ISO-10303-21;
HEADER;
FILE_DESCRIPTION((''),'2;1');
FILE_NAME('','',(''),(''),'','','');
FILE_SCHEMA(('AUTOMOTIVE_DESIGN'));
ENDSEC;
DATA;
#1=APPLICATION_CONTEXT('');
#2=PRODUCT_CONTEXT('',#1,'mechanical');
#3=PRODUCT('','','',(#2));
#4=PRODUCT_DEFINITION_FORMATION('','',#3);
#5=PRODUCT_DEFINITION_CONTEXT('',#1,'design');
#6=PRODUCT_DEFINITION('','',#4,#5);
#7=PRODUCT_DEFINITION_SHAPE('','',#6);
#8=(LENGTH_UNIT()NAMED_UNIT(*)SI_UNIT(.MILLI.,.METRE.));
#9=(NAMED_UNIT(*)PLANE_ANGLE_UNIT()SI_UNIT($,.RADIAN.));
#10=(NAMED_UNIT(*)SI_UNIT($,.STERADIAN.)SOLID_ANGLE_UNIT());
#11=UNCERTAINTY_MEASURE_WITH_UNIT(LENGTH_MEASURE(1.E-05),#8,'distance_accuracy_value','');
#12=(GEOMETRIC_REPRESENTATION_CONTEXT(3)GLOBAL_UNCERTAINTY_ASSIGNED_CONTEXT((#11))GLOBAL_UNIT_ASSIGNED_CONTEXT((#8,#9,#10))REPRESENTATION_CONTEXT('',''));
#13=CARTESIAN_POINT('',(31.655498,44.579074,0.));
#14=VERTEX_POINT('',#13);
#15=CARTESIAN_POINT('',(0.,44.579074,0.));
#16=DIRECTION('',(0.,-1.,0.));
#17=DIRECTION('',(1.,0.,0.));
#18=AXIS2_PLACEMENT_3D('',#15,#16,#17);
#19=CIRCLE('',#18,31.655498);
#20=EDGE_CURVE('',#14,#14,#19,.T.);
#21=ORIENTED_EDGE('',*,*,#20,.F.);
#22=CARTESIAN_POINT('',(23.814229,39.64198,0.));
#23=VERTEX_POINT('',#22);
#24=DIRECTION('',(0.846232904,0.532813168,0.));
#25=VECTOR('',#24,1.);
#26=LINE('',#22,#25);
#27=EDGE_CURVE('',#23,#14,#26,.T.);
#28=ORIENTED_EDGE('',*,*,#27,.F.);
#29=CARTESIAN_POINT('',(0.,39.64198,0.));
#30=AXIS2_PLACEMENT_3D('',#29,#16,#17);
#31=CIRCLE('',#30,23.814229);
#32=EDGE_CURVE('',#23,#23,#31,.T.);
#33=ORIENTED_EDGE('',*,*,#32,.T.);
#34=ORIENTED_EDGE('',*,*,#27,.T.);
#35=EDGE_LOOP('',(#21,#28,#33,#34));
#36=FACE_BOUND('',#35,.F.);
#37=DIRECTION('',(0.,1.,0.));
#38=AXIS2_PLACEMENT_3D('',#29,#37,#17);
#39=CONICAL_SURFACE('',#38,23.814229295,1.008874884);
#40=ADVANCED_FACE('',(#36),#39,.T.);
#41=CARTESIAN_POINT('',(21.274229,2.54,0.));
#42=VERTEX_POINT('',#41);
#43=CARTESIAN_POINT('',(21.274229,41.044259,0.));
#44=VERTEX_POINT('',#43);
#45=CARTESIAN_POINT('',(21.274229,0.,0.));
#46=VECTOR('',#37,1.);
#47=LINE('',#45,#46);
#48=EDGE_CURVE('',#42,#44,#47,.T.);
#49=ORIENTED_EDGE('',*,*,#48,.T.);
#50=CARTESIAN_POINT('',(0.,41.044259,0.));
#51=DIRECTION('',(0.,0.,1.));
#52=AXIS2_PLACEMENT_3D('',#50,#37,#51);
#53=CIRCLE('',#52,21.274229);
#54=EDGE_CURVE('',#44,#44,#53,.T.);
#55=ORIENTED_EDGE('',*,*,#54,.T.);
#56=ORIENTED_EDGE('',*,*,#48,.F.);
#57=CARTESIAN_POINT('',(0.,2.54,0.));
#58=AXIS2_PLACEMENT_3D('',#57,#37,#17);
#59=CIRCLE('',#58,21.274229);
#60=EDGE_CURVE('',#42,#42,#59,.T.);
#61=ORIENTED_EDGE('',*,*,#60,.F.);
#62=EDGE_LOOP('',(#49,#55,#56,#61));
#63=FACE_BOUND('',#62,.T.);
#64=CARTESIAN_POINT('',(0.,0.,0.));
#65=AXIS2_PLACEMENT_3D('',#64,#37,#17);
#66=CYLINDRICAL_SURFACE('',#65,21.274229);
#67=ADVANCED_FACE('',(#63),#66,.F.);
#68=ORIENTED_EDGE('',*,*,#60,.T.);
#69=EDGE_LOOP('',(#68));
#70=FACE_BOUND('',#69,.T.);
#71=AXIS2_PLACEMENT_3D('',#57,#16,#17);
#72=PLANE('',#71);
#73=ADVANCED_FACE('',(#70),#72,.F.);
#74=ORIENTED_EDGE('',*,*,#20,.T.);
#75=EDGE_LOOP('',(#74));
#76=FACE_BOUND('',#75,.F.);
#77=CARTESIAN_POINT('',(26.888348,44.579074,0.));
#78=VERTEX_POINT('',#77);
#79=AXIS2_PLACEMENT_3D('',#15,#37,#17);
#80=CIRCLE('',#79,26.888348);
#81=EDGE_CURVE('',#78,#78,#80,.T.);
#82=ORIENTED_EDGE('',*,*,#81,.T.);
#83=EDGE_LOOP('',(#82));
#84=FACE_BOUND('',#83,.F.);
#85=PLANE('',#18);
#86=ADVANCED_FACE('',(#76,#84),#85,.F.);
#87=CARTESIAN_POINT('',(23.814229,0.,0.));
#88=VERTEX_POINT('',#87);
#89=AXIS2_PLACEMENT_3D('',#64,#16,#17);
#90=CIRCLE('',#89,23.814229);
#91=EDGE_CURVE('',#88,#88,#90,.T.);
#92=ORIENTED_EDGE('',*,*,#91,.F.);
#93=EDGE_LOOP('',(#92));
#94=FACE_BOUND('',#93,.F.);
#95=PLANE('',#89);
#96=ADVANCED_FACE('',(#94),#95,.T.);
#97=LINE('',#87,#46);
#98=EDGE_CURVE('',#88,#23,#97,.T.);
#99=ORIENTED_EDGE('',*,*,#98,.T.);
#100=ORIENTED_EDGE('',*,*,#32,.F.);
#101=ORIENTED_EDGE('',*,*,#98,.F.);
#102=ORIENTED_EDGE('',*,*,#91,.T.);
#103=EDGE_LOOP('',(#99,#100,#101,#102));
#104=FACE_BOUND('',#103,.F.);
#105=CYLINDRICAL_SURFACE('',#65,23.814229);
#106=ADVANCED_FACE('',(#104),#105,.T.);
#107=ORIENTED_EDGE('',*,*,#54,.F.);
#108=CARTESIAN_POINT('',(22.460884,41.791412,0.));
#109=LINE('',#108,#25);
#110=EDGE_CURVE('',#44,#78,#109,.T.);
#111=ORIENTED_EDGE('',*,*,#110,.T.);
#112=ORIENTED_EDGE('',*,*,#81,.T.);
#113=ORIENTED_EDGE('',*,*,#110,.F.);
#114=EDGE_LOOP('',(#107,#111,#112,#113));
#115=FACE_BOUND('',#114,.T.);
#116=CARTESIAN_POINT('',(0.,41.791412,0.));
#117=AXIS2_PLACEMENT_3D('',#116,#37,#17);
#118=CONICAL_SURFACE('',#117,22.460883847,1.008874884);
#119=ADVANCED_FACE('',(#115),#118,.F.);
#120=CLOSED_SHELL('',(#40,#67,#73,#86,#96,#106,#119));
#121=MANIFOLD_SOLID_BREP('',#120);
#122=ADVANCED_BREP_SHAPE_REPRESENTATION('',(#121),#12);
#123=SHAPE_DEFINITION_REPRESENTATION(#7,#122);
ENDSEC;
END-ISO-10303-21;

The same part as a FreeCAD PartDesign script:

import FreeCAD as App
import Part
import Sketcher

V = App.Vector
Q = App.Units.Quantity


def faces_at(feature, points):
    """Names of the faces that lie closest to the given points."""
    faces = feature.Shape.Faces
    near = lambda p: min(range(len(faces)), key=lambda i: faces[i].distToShape(Part.Vertex(*p))[0])
    return sorted({f"Face{near(p) + 1}" for p in points})


def add_polygon(sketch, points):
    """Adds a closed chain of lines whose ends are joined by coincident constraints."""
    first, n = sketch.GeometryCount, len(points)
    for a, b in zip(points, points[1:] + points[:1]):
        sketch.addGeometry(Part.LineSegment(App.Vector(*a, 0), App.Vector(*b, 0)), False)
    for i in range(n):
        sketch.addConstraint(Sketcher.Constraint("Coincident", first + i, 2, first + (i + 1) % n, 1))

doc = App.newDocument("Part")
body = doc.addObject("PartDesign::Body", "Body")

sketch1 = body.newObject("Sketcher::SketchObject", "Sketch")
sketch1.AttachmentSupport = (doc.getObject("XY_Plane"), [""])
sketch1.MapMode = "FlatFace"
add_polygon(sketch1, [(32, 45), (0, 45), (0, 0), (24, 0), (24, 40)])
sketch1.addConstraint([
    Sketcher.Constraint("Horizontal", 0),
    Sketcher.Constraint("Vertical", 1),
    Sketcher.Constraint("Horizontal", 2),
    Sketcher.Constraint("Vertical", 3),
    Sketcher.Constraint("Coincident", 1, 2, -1, 1),
    Sketcher.Constraint("DistanceX", 2, 1, 2, 2, 23.814229),
    Sketcher.Constraint("DistanceY", 3, 1, 3, 2, 39.64198),
    Sketcher.Constraint("DistanceX", 0, 2, 0, 1, 31.655498),
    Sketcher.Constraint("DistanceY", 1, 2, 1, 1, 44.579074),
])
revolution = body.newObject("PartDesign::Revolution", "Revolution")
revolution.Profile = sketch1
revolution.ReferenceAxis = (sketch1, ["V_Axis"])
revolution.Angle = 360
doc.recompute()

thickness = body.newObject("PartDesign::Thickness", "Thickness")
thickness.Base = (revolution, faces_at(revolution, [(0, 44.579, 0)]))
thickness.Value = Q("0.1 in")
thickness.Reversed = True
thickness.Join = "Intersection"

doc.recompute()
